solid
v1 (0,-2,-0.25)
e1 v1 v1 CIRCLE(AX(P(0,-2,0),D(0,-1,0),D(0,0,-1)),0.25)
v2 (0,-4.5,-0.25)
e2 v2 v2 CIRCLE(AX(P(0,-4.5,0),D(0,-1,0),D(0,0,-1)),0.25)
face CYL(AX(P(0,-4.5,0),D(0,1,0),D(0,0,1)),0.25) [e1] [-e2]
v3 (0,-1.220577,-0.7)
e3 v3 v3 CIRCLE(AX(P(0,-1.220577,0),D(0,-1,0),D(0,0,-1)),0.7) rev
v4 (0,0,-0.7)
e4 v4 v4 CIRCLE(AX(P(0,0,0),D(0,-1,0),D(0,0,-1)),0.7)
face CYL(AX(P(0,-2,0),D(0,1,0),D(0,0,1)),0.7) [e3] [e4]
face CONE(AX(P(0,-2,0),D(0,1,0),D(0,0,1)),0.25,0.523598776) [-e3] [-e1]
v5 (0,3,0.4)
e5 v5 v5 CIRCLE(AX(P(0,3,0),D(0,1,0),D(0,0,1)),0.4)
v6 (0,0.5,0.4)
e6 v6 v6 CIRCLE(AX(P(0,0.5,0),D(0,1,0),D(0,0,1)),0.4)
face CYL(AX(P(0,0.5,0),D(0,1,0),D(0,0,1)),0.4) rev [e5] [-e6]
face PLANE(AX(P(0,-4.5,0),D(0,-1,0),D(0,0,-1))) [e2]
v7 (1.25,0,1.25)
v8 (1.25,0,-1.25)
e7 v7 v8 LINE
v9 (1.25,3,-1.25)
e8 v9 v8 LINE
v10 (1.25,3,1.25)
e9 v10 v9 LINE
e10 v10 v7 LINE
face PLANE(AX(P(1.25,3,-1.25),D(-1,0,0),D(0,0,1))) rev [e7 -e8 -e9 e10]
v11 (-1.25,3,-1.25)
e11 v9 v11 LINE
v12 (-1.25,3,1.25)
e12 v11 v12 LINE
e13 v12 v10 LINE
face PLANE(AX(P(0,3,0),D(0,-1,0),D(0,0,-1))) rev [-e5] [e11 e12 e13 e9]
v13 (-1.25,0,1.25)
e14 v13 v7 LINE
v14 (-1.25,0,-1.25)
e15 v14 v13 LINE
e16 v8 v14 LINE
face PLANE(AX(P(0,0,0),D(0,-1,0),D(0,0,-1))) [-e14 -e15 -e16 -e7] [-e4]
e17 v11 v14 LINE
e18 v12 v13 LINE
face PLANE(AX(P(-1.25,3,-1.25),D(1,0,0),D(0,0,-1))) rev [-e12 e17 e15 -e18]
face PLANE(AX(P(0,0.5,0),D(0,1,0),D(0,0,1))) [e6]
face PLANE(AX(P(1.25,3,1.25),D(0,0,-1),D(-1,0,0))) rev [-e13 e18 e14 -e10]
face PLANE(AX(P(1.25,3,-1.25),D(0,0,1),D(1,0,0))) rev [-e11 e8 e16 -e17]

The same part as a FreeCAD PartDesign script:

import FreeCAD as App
import Part
import Sketcher


def edges_at(feature, points):
    """Names of the edges that pass closest to the given points."""
    edges = feature.Shape.Edges
    near = lambda p: min(range(len(edges)), key=lambda i: edges[i].distToShape(Part.Vertex(*p))[0])
    return sorted({f"Edge{near(p) + 1}" for p in points})

doc = App.newDocument("Part")
body = doc.addObject("PartDesign::Body", "Body")

sketch1 = body.newObject("Sketcher::SketchObject", "Sketch")
sketch1.AttachmentSupport = (doc.getObject("XZ_Plane"), [""])
sketch1.MapMode = "FlatFace"
sketch1.addGeometry([
    Part.LineSegment(App.Vector(-1.2, -1.2, 0), App.Vector(-1.2, 1.2, 0)),
    Part.LineSegment(App.Vector(-1.2, 1.2, 0), App.Vector(1.2, 1.2, 0)),
    Part.LineSegment(App.Vector(1.2, 1.2, 0), App.Vector(1.2, -1.2, 0)),
    Part.LineSegment(App.Vector(1.2, -1.2, 0), App.Vector(-1.2, -1.2, 0)),
], False)
sketch1.addConstraint([
    Sketcher.Constraint("Coincident", 0, 2, 1, 1),
    Sketcher.Constraint("Coincident", 1, 2, 2, 1),
    Sketcher.Constraint("Coincident", 2, 2, 3, 1),
    Sketcher.Constraint("Coincident", 3, 2, 0, 1),
    Sketcher.Constraint("Vertical", 0),
    Sketcher.Constraint("Horizontal", 1),
    Sketcher.Constraint("Vertical", 2),
    Sketcher.Constraint("Horizontal", 3),
    Sketcher.Constraint("Symmetric", 0, 2, 2, 2, -1, 1),
    Sketcher.Constraint("Equal", 3, 0),
    Sketcher.Constraint("DistanceX", 1, 1, 1, 2, 2.5),
])
pad1 = body.newObject("PartDesign::Pad", "Pad")
pad1.Profile = sketch1
pad1.Length = 3
pad1.Reversed = True

sketch2 = body.newObject("Sketcher::SketchObject", "Sketch001")
sketch2.AttachmentSupport = (doc.getObject("XZ_Plane"), [""])
sketch2.MapMode = "FlatFace"
sketch2.addGeometry(Part.Circle(App.Vector(0, 0, 0), App.Vector(0, 0, 1), 0.7), False)
sketch2.addConstraint([
    Sketcher.Constraint("Coincident", 0, 3, -1, 1),
    Sketcher.Constraint("Diameter", 0, 1.4),
])
pad2 = body.newObject("PartDesign::Pad", "Pad001")
pad2.Profile = sketch2
pad2.Length = 2
doc.recompute()

chamfer = body.newObject("PartDesign::Chamfer", "Chamfer")
chamfer.Base = (pad2, edges_at(pad2, [(0, -2, 0.7)]))
chamfer.ChamferType = "Two distances"
chamfer.Size = 0.779423
chamfer.Size2 = 0.45

sketch3 = body.newObject("Sketcher::SketchObject", "Sketch002")
sketch3.AttachmentSupport = (doc.getObject("XZ_Plane"), [""])
sketch3.MapMode = "FlatFace"
sketch3.AttachmentOffset = App.Placement(App.Vector(0, 0, 2), App.Rotation())
sketch3.addGeometry(Part.Circle(App.Vector(0, 0, 0), App.Vector(0, 0, 1), 0.25), False)
sketch3.addConstraint([
    Sketcher.Constraint("Coincident", 0, 3, -1, 1),
    Sketcher.Constraint("Diameter", 0, 0.5),
])
pad3 = body.newObject("PartDesign::Pad", "Pad002")
pad3.Profile = sketch3
pad3.Length = 2.5

sketch4 = body.newObject("Sketcher::SketchObject", "Sketch003")
sketch4.AttachmentSupport = (doc.getObject("XZ_Plane"), [""])
sketch4.MapMode = "FlatFace"
sketch4.AttachmentOffset = App.Placement(App.Vector(0, 0, -3), App.Rotation())
sketch4.addGeometry(Part.Circle(App.Vector(0, 0, 0), App.Vector(0, 0, 1), 0.4), False)
sketch4.addConstraint([
    Sketcher.Constraint("Coincident", 0, 3, -1, 1),
    Sketcher.Constraint("Diameter", 0, 0.8),
])
pocket1 = body.newObject("PartDesign::Pocket", "Pocket")
pocket1.Profile = sketch4
pocket1.Length = 2.5
pocket1.Reversed = True

doc.recompute()
